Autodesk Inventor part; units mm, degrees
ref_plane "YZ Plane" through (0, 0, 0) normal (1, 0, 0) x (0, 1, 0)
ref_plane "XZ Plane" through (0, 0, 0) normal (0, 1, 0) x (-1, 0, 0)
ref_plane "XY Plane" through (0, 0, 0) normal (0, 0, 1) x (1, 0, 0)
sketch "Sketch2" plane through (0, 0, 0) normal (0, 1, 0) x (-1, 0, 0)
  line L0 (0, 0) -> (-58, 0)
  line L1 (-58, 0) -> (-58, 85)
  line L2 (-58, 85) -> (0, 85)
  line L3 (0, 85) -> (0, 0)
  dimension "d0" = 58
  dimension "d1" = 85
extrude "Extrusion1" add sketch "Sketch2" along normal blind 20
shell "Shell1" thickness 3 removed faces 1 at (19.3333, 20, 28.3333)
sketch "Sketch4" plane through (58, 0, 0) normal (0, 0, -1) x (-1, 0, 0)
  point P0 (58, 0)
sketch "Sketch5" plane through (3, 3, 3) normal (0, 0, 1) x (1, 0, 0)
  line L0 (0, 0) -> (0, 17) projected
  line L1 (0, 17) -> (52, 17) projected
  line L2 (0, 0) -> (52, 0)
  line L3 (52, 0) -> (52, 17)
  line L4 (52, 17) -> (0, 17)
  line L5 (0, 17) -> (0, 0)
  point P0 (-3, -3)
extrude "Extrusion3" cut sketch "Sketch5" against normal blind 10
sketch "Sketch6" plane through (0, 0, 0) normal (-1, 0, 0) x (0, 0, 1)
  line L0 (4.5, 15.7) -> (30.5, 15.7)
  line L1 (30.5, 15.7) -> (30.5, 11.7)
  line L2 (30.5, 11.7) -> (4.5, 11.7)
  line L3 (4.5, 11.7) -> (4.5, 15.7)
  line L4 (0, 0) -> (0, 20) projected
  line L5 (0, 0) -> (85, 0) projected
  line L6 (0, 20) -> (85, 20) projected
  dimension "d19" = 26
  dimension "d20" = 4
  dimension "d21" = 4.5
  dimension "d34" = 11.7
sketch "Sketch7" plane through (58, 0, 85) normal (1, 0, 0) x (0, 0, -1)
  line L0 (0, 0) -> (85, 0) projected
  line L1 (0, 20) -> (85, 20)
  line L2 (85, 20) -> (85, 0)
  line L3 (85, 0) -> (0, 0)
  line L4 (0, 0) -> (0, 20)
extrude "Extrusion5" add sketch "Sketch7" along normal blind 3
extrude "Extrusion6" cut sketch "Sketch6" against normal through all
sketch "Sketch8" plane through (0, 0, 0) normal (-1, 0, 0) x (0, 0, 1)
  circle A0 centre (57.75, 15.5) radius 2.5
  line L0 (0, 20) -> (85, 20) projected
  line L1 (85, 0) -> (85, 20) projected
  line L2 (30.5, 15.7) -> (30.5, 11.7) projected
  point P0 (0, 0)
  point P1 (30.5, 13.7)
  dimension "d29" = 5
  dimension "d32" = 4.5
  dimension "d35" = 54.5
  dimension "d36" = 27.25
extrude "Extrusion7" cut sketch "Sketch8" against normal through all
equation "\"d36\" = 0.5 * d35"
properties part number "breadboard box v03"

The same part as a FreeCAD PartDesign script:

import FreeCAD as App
import Part
import Sketcher

V = App.Vector


def faces_at(feature, points):
    """Names of the faces that lie closest to the given points."""
    faces = feature.Shape.Faces
    near = lambda p: min(range(len(faces)), key=lambda i: faces[i].distToShape(Part.Vertex(*p))[0])
    return sorted({f"Face{near(p) + 1}" for p in points})


def add_polygon(sketch, points):
    """Adds a closed chain of lines whose ends are joined by coincident constraints."""
    first, n = sketch.GeometryCount, len(points)
    for a, b in zip(points, points[1:] + points[:1]):
        sketch.addGeometry(Part.LineSegment(App.Vector(*a, 0), App.Vector(*b, 0)), False)
    for i in range(n):
        sketch.addConstraint(Sketcher.Constraint("Coincident", first + i, 2, first + (i + 1) % n, 1))

doc = App.newDocument("Part")
body = doc.addObject("PartDesign::Body", "Body")

# Sketch on XZ plane
sketch1 = body.newObject("Sketcher::SketchObject", "Sketch")
sketch1.AttachmentSupport = (doc.getObject("XZ_Plane"), [""])
sketch1.MapMode = "FlatFace"
add_polygon(sketch1, [(58, 0), (0, 0), (0, 85), (58, 85)])  # lines 0-3
sketch1.addConstraint([
    Sketcher.Constraint("Horizontal", 0),
    Sketcher.Constraint("Vertical", 1),
    Sketcher.Constraint("Horizontal", 2),
    Sketcher.Constraint("Vertical", 3),
    Sketcher.Constraint("Coincident", 0, 2, -1, 1),
    Sketcher.Constraint("DistanceX", 0, 2, 0, 1, 58.0),
    Sketcher.Constraint("DistanceY", 1, 1, 1, 2, 85.0),
])
pad1 = body.newObject("PartDesign::Pad", "Pad")
pad1.Profile = sketch1
pad1.Length = 20
pad1.Reversed = True
doc.recompute()

thickness = body.newObject("PartDesign::Thickness", "Thickness")
thickness.Base = (pad1, faces_at(pad1, [(19.333, 20, 28.333)]))
thickness.Value = 3
thickness.Reversed = True
thickness.Join = "Intersection"

# Sketch on XY plane
sketch2 = body.newObject("Sketcher::SketchObject", "Sketch001")
sketch2.AttachmentSupport = (doc.getObject("XY_Plane"), [""])
sketch2.MapMode = "FlatFace"
sketch2.AttachmentOffset = App.Placement(V(0, 0, 3), App.Rotation())
add_polygon(sketch2, [(3, 20), (3, 3), (55, 3), (55, 20)])  # lines 0-3
sketch2.addConstraint([
    Sketcher.Constraint("Vertical", 0),
    Sketcher.Constraint("Horizontal", 1),
    Sketcher.Constraint("Vertical", 2),
    Sketcher.Constraint("Horizontal", 3),
    Sketcher.Constraint("DistanceX", 1, 1, 1, 2, 52.0),
    Sketcher.Constraint("DistanceY", 0, 2, 0, 1, 17.0),
    Sketcher.Constraint("DistanceX", -1, 1, 0, 2, 3.0),
    Sketcher.Constraint("DistanceY", -1, 1, 0, 2, 3.0),
])
pocket1 = body.newObject("PartDesign::Pocket", "Pocket")
pocket1.Profile = sketch2
pocket1.Length = 10

# Sketch on YZ plane
sketch3 = body.newObject("Sketcher::SketchObject", "Sketch002")
sketch3.AttachmentSupport = (doc.getObject("YZ_Plane"), [""])
sketch3.MapMode = "FlatFace"
sketch3.AttachmentOffset = App.Placement(V(0, 0, 58), App.Rotation())
add_polygon(sketch3, [(20, 85), (0, 85), (0, 0), (20, 0)])  # lines 0-3
sketch3.addConstraint([
    Sketcher.Constraint("Horizontal", 0),
    Sketcher.Constraint("Vertical", 1),
    Sketcher.Constraint("Horizontal", 2),
    Sketcher.Constraint("Vertical", 3),
    Sketcher.Constraint("Coincident", 1, 2, -1, 1),
    Sketcher.Constraint("DistanceX", 0, 2, 0, 1, 20.0),
    Sketcher.Constraint("DistanceY", 1, 2, 1, 1, 85.0),
])
pad2 = body.newObject("PartDesign::Pad", "Pad001")
pad2.Profile = sketch3
pad2.Length = 3

# Sketch on YZ plane
sketch4 = body.newObject("Sketcher::SketchObject", "Sketch003")
sketch4.AttachmentSupport = (doc.getObject("YZ_Plane"), [""])
sketch4.MapMode = "FlatFace"
add_polygon(sketch4, [(15.7, 30.5), (15.7, 4.5), (11.7, 4.5), (11.7, 30.5)])  # lines 0-3
sketch4.addConstraint([
    Sketcher.Constraint("Vertical", 0),
    Sketcher.Constraint("Horizontal", 1),
    Sketcher.Constraint("Vertical", 2),
    Sketcher.Constraint("Horizontal", 3),
    Sketcher.Constraint("DistanceX", 1, 2, 1, 1, 4.0),
    Sketcher.Constraint("DistanceY", 0, 2, 0, 1, 26.0),
    Sketcher.Constraint("DistanceY", -1, 1, 0, 2, 4.5),
    Sketcher.Constraint("DistanceX", -1, 1, 1, 2, 11.7),
])
pocket2 = body.newObject("PartDesign::Pocket", "Pocket001")
pocket2.Profile = sketch4
pocket2.Type = "ThroughAll"
pocket2.Reversed = True

# Sketch on YZ plane
sketch5 = body.newObject("Sketcher::SketchObject", "Sketch004")
sketch5.AttachmentSupport = (doc.getObject("YZ_Plane"), [""])
sketch5.MapMode = "FlatFace"
sketch5.addGeometry(Part.Circle(V(15.5, 57.8, 0), V(0, 0, 1), 2.5), False)
sketch5.addConstraint([
    Sketcher.Constraint("Diameter", 0, 5.0),
    Sketcher.Constraint("DistanceX", -1, 1, 0, 3, 15.5),
    Sketcher.Constraint("DistanceY", -1, 1, 0, 3, 57.75),
])
pocket3 = body.newObject("PartDesign::Pocket", "Pocket002")
pocket3.Profile = sketch5
pocket3.Type = "ThroughAll"
pocket3.Reversed = True

doc.recompute()
